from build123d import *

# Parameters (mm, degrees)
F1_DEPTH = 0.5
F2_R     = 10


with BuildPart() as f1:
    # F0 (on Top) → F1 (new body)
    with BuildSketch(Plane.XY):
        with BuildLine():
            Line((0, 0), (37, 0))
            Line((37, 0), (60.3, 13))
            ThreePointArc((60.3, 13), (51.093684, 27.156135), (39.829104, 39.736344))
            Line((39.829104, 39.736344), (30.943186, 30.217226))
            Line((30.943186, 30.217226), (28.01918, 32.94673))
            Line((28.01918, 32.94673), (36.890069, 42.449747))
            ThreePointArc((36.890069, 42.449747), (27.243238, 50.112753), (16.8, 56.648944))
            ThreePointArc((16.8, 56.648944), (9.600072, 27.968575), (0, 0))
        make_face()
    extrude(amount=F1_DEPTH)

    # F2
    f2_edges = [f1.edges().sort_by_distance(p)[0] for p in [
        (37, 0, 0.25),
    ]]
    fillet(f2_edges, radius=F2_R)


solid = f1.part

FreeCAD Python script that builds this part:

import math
import FreeCAD as App
import Part
import Sketcher
Q = App.Units.Quantity


def edges_at(feature, points):
    """Names of the edges that pass closest to the given points."""
    edges = feature.Shape.Edges
    near = lambda p: min(range(len(edges)), key=lambda i: edges[i].distToShape(Part.Vertex(*p))[0])
    return sorted({f"Edge{near(p) + 1}" for p in points})

doc = App.newDocument("Part")
body = doc.addObject("PartDesign::Body", "Body")

# Sketch on XY plane
sketch1 = body.newObject("Sketcher::SketchObject", "Sketch")
sketch1.AttachmentSupport = (doc.getObject("XY_Plane"), [""])
sketch1.MapMode = "FlatFace"
sketch1.addGeometry([
    Part.LineSegment(App.Vector(0, 0, 0), App.Vector(37, 0, 0)),  # 0
    Part.LineSegment(App.Vector(37, 0, 0), App.Vector(60.3, 13, 0)),  # 1
    Part.ArcOfCircle(Part.Circle(App.Vector(-36.2, -39.7, 0), App.Vector(0, 0, 1), 110), math.radians(28.64), math.radians(46.24)),  # 2
    Part.LineSegment(App.Vector(39.8, 39.7, 0), App.Vector(30.9, 30.2, 0)),  # 3
    Part.LineSegment(App.Vector(30.9, 30.2, 0), App.Vector(28, 32.9, 0)),  # 4
    Part.LineSegment(App.Vector(28, 32.9, 0), App.Vector(36.9, 42.4, 0)),  # 5
    Part.ArcOfCircle(Part.Circle(App.Vector(-36.2, -39.7, 0), App.Vector(0, 0, 1), 110), math.radians(48.33), math.radians(61.17)),  # 6
    Part.ArcOfCircle(Part.Circle(App.Vector(-325.3, 127.3, 0), App.Vector(0, 0, 1), 349.3), math.radians(-21.37), math.radians(-11.67)),  # 7
], False)
sketch1.addConstraint([
    Sketcher.Constraint("Coincident", 0, 2, 1, 1),
    Sketcher.Constraint("Coincident", 1, 2, 2, 1),
    Sketcher.Constraint("Coincident", 2, 2, 3, 1),
    Sketcher.Constraint("Coincident", 3, 2, 4, 1),
    Sketcher.Constraint("Coincident", 4, 2, 5, 1),
    Sketcher.Constraint("Coincident", 5, 2, 6, 1),
    Sketcher.Constraint("Coincident", 6, 2, 7, 2),
    Sketcher.Constraint("Coincident", 7, 1, 0, 1),
    Sketcher.Constraint("Horizontal", 0),
    Sketcher.Constraint("PointOnObject", 0, 2, -1),
    Sketcher.Constraint("Perpendicular", 3, 4),
    Sketcher.Constraint("Perpendicular", 4, 5),
    Sketcher.Constraint("DistanceX", 0, 1, 0, 2, Q("37 mm")),
    Sketcher.Constraint("Distance", 4, Q("4 mm")),
    Sketcher.Constraint("Distance", 5, Q("13 mm")),
    Sketcher.Constraint("DistanceX", -1, 1, 0, 2, Q("37 mm")),
    Sketcher.Constraint("DistanceY", -1, 1, 1, 2, Q("13 mm")),
    Sketcher.Constraint("DistanceX", -1, 1, 1, 2, Q("60.3 mm")),
    Sketcher.Constraint("Radius", 6, Q("109.999931 mm")),
    Sketcher.Constraint("Radius", 2, Q("109.999986 mm")),
    Sketcher.Constraint("Radius", 7, Q("349.276785 mm")),
    Sketcher.Constraint("DistanceX", 6, 3, 2, 2, Q("76.0746 mm")),
    Sketcher.Constraint("DistanceY", 2, 2, 6, 2, Q("16.9126 mm")),
    Sketcher.Constraint("DistanceY", 2, 3, -1, 1, Q("39.71583 mm")),
    Sketcher.Constraint("DistanceY", 6, 3, -1, 1, Q("39.71578 mm")),
    Sketcher.Constraint("DistanceX", -1, 1, 4, 2, Q("28.01918 mm")),
    Sketcher.Constraint("DistanceY", -1, 1, 4, 2, Q("32.94673 mm")),
])
pad1 = body.newObject("PartDesign::Pad", "Pad")
pad1.Profile = sketch1
pad1.Length = 0.5
doc.recompute()

fillet = body.newObject("PartDesign::Fillet", "Fillet")
fillet.Base = (pad1, edges_at(pad1, [(37, 0, 0.25)]))
fillet.Radius = 10

doc.recompute()
